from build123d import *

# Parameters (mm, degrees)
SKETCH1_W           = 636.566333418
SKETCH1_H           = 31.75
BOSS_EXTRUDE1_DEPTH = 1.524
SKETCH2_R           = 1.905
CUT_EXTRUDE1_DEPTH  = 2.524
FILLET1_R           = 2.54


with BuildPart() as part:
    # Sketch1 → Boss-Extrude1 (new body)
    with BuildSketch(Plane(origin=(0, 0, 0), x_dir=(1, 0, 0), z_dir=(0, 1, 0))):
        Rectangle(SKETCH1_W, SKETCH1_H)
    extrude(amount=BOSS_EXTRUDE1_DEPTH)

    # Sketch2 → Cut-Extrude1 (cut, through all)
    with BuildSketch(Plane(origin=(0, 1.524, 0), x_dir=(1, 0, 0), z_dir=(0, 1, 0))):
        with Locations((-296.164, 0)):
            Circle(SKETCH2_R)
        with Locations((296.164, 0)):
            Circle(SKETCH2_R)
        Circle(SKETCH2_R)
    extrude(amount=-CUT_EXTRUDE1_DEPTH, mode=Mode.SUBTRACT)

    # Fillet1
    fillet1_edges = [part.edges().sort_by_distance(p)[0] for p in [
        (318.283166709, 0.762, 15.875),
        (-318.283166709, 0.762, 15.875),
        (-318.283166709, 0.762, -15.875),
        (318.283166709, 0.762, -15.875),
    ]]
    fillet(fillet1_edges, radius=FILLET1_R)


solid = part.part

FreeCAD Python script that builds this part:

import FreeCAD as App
import Part
import Sketcher

V = App.Vector
Q = App.Units.Quantity


def edges_at(feature, points):
    """Names of the edges that pass closest to the given points."""
    edges = feature.Shape.Edges
    near = lambda p: min(range(len(edges)), key=lambda i: edges[i].distToShape(Part.Vertex(*p))[0])
    return sorted({f"Edge{near(p) + 1}" for p in points})


def add_polygon(sketch, points):
    """Adds a closed chain of lines whose ends are joined by coincident constraints."""
    first, n = sketch.GeometryCount, len(points)
    for a, b in zip(points, points[1:] + points[:1]):
        sketch.addGeometry(Part.LineSegment(App.Vector(*a, 0), App.Vector(*b, 0)), False)
    for i in range(n):
        sketch.addConstraint(Sketcher.Constraint("Coincident", first + i, 2, first + (i + 1) % n, 1))

doc = App.newDocument("Part")
params = doc.addObject("Spreadsheet::Sheet", "Params")
for row, (alias, value) in enumerate([
    ("sketch1_height", "1.25 in"),
    ("pad1_length", "0.06 in"),
    ("sketch2_diameter", "0.15 in"),
    ("fillet_radius", "0.1 in"),
], start=1):
    params.set(f"A{row}", alias)
    params.set(f"B{row}", "=" + value)
    params.setAlias(f"B{row}", alias)

body = doc.addObject("PartDesign::Body", "Body")

sketch1 = body.newObject("Sketcher::SketchObject", "Sketch")
sketch1.AttachmentSupport = (doc.getObject("XZ_Plane"), [""])
sketch1.MapMode = "FlatFace"
add_polygon(sketch1, [(-318.283167, -15.875), (-318.283167, 15.875), (318.283167, 15.875), (318.283167, -15.875)])
sketch1.addConstraint(Sketcher.Constraint("Vertical", 0))
sketch1.addConstraint(Sketcher.Constraint("Horizontal", 1))
sketch1.addConstraint(Sketcher.Constraint("Vertical", 2))
sketch1.addConstraint(Sketcher.Constraint("Horizontal", 3))
sketch1.addConstraint(Sketcher.Constraint("Symmetric", 0, 2, 2, 2, -1, 1))
sketch1.addConstraint(Sketcher.Constraint("DistanceY", 0, 1, 0, 2, Q("1.25 in")))
sketch1.addConstraint(Sketcher.Constraint("DistanceX", 1, 1, 1, 2, 636.566333))
sketch1.setExpression("Constraints[9]", "Params.sketch1_height")
pad1 = body.newObject("PartDesign::Pad", "Pad")
pad1.Profile = sketch1
pad1.setExpression("Length", "Params.pad1_length")
pad1.Reversed = True

sketch2 = body.newObject("Sketcher::SketchObject", "Sketch001")
sketch2.AttachmentSupport = (doc.getObject("XZ_Plane"), [""])
sketch2.MapMode = "FlatFace"
sketch2.AttachmentOffset = App.Placement(V(0, 0, -0.06 * 25.4), App.Rotation())
sketch2.addGeometry(Part.Circle(V(-296.164, 0, 0), V(0, 0, 1), 1.905), False)
sketch2.addGeometry(Part.Circle(V(296.164, 0, 0), V(0, 0, 1), 1.905), False)
sketch2.addGeometry(Part.Circle(V(0, 0, 0), V(0, 0, 1), 1.905), False)
sketch2.addConstraint(Sketcher.Constraint("Coincident", 2, 3, -1, 1))
sketch2.addConstraint(Sketcher.Constraint("Equal", 0, 1))
sketch2.addConstraint(Sketcher.Constraint("Equal", 1, 2))
sketch2.addConstraint(Sketcher.Constraint("Symmetric", 0, 3, 1, 3, -1, 1))
sketch2.addConstraint(Sketcher.Constraint("PointOnObject", 0, 3, -1))
sketch2.addConstraint(Sketcher.Constraint("Diameter", 0, Q("0.15 in")))
sketch2.addConstraint(Sketcher.Constraint("DistanceX", 0, 3, -1, 1, Q("11.66 in")))
sketch2.setExpression("Constraints[5]", "Params.sketch2_diameter")
pocket1 = body.newObject("PartDesign::Pocket", "Pocket")
pocket1.Profile = sketch2
pocket1.Type = "ThroughAll"
pocket1.Reversed = True
doc.recompute()

fillet = body.newObject("PartDesign::Fillet", "Fillet")
fillet.Base = (pocket1, edges_at(pocket1, [
    (318.283, 0.762, 15.875),
    (-318.283, 0.762, 15.875),
    (-318.283, 0.762, -15.875),
    (318.283, 0.762, -15.875),
]))
fillet.setExpression("Radius", "Params.fillet_radius")

doc.recompute()
